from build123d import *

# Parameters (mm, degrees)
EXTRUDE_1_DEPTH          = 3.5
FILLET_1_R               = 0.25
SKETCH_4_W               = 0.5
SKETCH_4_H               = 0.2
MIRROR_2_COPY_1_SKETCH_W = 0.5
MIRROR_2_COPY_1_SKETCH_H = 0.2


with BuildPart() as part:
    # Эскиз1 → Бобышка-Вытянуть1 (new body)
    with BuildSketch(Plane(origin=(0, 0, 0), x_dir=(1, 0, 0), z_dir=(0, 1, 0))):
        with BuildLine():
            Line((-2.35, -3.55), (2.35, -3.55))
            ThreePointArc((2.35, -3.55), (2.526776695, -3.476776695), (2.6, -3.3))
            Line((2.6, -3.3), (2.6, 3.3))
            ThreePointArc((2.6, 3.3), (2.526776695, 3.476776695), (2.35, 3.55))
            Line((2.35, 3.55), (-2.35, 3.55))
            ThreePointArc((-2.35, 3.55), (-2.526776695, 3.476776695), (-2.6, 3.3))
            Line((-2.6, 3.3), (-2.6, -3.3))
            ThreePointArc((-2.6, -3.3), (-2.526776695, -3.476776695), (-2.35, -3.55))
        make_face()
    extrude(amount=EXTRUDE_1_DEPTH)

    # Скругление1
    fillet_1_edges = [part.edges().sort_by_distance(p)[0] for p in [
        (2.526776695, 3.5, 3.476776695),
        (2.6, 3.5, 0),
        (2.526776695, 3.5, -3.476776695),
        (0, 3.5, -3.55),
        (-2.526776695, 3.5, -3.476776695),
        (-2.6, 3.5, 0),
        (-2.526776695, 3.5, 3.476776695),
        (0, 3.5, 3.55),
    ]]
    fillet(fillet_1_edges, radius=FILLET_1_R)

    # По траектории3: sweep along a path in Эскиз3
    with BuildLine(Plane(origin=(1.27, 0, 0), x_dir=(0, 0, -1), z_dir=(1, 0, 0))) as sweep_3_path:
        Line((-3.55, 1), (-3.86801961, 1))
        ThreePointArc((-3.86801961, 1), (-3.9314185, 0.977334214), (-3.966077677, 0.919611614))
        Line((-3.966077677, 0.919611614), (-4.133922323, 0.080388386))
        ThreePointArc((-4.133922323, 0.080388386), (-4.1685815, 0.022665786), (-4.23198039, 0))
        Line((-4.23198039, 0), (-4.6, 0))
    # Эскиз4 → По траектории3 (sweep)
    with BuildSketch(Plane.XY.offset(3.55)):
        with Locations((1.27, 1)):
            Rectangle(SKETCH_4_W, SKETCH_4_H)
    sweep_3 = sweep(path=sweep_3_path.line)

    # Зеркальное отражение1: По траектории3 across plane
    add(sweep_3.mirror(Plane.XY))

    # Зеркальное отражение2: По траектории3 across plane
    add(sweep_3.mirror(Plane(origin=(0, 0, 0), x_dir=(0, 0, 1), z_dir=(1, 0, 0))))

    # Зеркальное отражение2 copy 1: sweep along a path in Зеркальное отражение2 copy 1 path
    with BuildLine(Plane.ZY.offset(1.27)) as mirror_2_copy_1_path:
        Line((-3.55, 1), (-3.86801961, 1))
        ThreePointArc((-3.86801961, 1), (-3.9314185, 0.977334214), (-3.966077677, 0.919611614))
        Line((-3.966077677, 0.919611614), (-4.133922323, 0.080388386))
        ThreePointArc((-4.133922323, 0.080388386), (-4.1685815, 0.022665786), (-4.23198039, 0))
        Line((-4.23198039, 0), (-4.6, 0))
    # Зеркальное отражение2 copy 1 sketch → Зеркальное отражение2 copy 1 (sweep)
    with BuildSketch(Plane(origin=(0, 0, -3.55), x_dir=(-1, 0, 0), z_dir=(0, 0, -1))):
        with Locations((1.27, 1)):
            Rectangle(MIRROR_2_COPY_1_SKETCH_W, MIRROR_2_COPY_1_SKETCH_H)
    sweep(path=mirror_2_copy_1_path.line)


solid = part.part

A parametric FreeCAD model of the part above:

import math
import FreeCAD as App
import Part
import Sketcher
Q = App.Units.Quantity


def edges_at(feature, points):
    """Names of the edges that pass closest to the given points."""
    edges = feature.Shape.Edges
    near = lambda p: min(range(len(edges)), key=lambda i: edges[i].distToShape(Part.Vertex(*p))[0])
    return sorted({f"Edge{near(p) + 1}" for p in points})


def add_polygon(sketch, points):
    """Adds a closed chain of lines whose ends are joined by coincident constraints."""
    first, n = sketch.GeometryCount, len(points)
    for a, b in zip(points, points[1:] + points[:1]):
        sketch.addGeometry(Part.LineSegment(App.Vector(*a, 0), App.Vector(*b, 0)), False)
    for i in range(n):
        sketch.addConstraint(Sketcher.Constraint("Coincident", first + i, 2, first + (i + 1) % n, 1))

doc = App.newDocument("Part")
body = doc.addObject("PartDesign::Body", "Body")

sketch1 = body.newObject("Sketcher::SketchObject", "Sketch")
sketch1.AttachmentSupport = (doc.getObject("XZ_Plane"), [""])
sketch1.MapMode = "FlatFace"
sketch1.addGeometry(Part.LineSegment(App.Vector(-2.35, 3.55, 0), App.Vector(2.35, 3.55, 0)), False)
sketch1.addGeometry(Part.ArcOfCircle(Part.Circle(App.Vector(2.35, 3.3, 0), App.Vector(0, 0, 1), 0.25), math.radians(0), math.radians(90)), False)
sketch1.addGeometry(Part.LineSegment(App.Vector(2.6, 3.3, 0), App.Vector(2.6, -3.3, 0)), False)
sketch1.addGeometry(Part.ArcOfCircle(Part.Circle(App.Vector(2.35, -3.3, 0), App.Vector(0, 0, 1), 0.25), math.radians(-90), math.radians(0)), False)
sketch1.addGeometry(Part.LineSegment(App.Vector(2.35, -3.55, 0), App.Vector(-2.35, -3.55, 0)), False)
sketch1.addGeometry(Part.ArcOfCircle(Part.Circle(App.Vector(-2.35, -3.3, 0), App.Vector(0, 0, 1), 0.25), math.radians(-180), math.radians(-90)), False)
sketch1.addGeometry(Part.LineSegment(App.Vector(-2.6, -3.3, 0), App.Vector(-2.6, 3.3, 0)), False)
sketch1.addGeometry(Part.ArcOfCircle(Part.Circle(App.Vector(-2.35, 3.3, 0), App.Vector(0, 0, 1), 0.25), math.radians(90), math.radians(180)), False)
sketch1.addConstraint(Sketcher.Constraint("Tangent", 0, 2, 1, 2))
sketch1.addConstraint(Sketcher.Constraint("Tangent", 1, 1, 2, 1))
sketch1.addConstraint(Sketcher.Constraint("Tangent", 2, 2, 3, 2))
sketch1.addConstraint(Sketcher.Constraint("Tangent", 3, 1, 4, 1))
sketch1.addConstraint(Sketcher.Constraint("Tangent", 4, 2, 5, 2))
sketch1.addConstraint(Sketcher.Constraint("Tangent", 5, 1, 6, 1))
sketch1.addConstraint(Sketcher.Constraint("Tangent", 6, 2, 7, 2))
sketch1.addConstraint(Sketcher.Constraint("Tangent", 7, 1, 0, 1))
sketch1.addConstraint(Sketcher.Constraint("Horizontal", 0))
sketch1.addConstraint(Sketcher.Constraint("Vertical", 2))
sketch1.addConstraint(Sketcher.Constraint("Horizontal", 4))
sketch1.addConstraint(Sketcher.Constraint("Vertical", 6))
sketch1.addConstraint(Sketcher.Constraint("Equal", 1, 3))
sketch1.addConstraint(Sketcher.Constraint("Equal", 3, 5))
sketch1.addConstraint(Sketcher.Constraint("Equal", 5, 7))
sketch1.addConstraint(Sketcher.Constraint("Symmetric", 1, 3, 5, 3, -1, 1))
sketch1.addConstraint(Sketcher.Constraint("Radius", 1, Q("0.25 mm")))
sketch1.addConstraint(Sketcher.Constraint("DistanceX", 0, 1, 0, 2, Q("4.7 mm")))
sketch1.addConstraint(Sketcher.Constraint("DistanceY", 2, 2, 2, 1, Q("6.6 mm")))
pad1 = body.newObject("PartDesign::Pad", "Pad")
pad1.Profile = sketch1
pad1.Length = 3.5
pad1.Reversed = True
doc.recompute()

fillet = body.newObject("PartDesign::Fillet", "Fillet")
fillet.Base = (pad1, edges_at(pad1, [
    (2.527, 3.5, 3.477),
    (2.6, 3.5, 0),
    (2.527, 3.5, -3.477),
    (0, 3.5, -3.55),
    (-2.527, 3.5, -3.477),
    (-2.6, 3.5, 0),
    (-2.527, 3.5, 3.477),
    (0, 3.5, 3.55),
]))
fillet.Radius = 0.25

sketch2 = body.newObject("Sketcher::SketchObject", "Sketch001")
sketch2.AttachmentSupport = (doc.getObject("XY_Plane"), [""])
sketch2.MapMode = "FlatFace"
sketch2.AttachmentOffset = App.Placement(App.Vector(0, 0, 3.55), App.Rotation())
add_polygon(sketch2, [(1.02, 1.1), (1.02, 0.9), (1.52, 0.9), (1.52, 1.1)])
sketch2.addConstraint(Sketcher.Constraint("Vertical", 0))
sketch2.addConstraint(Sketcher.Constraint("Horizontal", 1))
sketch2.addConstraint(Sketcher.Constraint("Vertical", 2))
sketch2.addConstraint(Sketcher.Constraint("Horizontal", 3))
sketch2.addConstraint(Sketcher.Constraint("DistanceX", 1, 1, 1, 2, Q("0.5 mm")))
sketch2.addConstraint(Sketcher.Constraint("DistanceY", 0, 2, 0, 1, Q("0.2 mm")))
sketch2.addConstraint(Sketcher.Constraint("DistanceY", -1, 1, 0, 2, Q("0.9 mm")))
sketch2.addConstraint(Sketcher.Constraint("DistanceX", -1, 1, 0, 2, Q("1.02 mm")))

sketch3 = body.newObject("Sketcher::SketchObject", "Sketch002")
sketch3.AttachmentSupport = (doc.getObject("YZ_Plane"), [""])
sketch3.MapMode = "FlatFace"
sketch3.AttachmentOffset = App.Placement(App.Vector(0, 0, 1.27), App.Rotation())
sketch3.addGeometry(Part.LineSegment(App.Vector(1, 3.55, 0), App.Vector(1, 3.87, 0)), False)
sketch3.addGeometry(Part.ArcOfCircle(Part.Circle(App.Vector(0.9, 3.87, 0), App.Vector(0, 0, 1), 0.1), math.radians(0), math.radians(79)), False)
sketch3.addGeometry(Part.LineSegment(App.Vector(0.92, 3.97, 0), App.Vector(0.08, 4.13, 0)), False)
sketch3.addGeometry(Part.ArcOfCircle(Part.Circle(App.Vector(0.1, 4.23, 0), App.Vector(0, 0, 1), 0.1), math.radians(-180), math.radians(-101)), False)
sketch3.addGeometry(Part.LineSegment(App.Vector(0, 4.23, 0), App.Vector(0, 4.6, 0)), False)
sketch3.addConstraint(Sketcher.Constraint("Tangent", 0, 2, 1, 1))
sketch3.addConstraint(Sketcher.Constraint("Tangent", 1, 2, 2, 1))
sketch3.addConstraint(Sketcher.Constraint("Tangent", 2, 2, 3, 2))
sketch3.addConstraint(Sketcher.Constraint("Tangent", 3, 1, 4, 1))
sketch3.addConstraint(Sketcher.Constraint("Vertical", 0))
sketch3.addConstraint(Sketcher.Constraint("Vertical", 4))
sketch3.addConstraint(Sketcher.Constraint("Equal", 1, 3))
sketch3.addConstraint(Sketcher.Constraint("PointOnObject", 3, 1, -2))
sketch3.addConstraint(Sketcher.Constraint("Radius", 1, Q("0.1 mm")))
sketch3.addConstraint(Sketcher.Constraint("DistanceX", -1, 1, 0, 1, Q("1 mm")))
sketch3.addConstraint(Sketcher.Constraint("DistanceY", -1, 1, 4, 2, Q("4.6 mm")))
sketch3.addConstraint(Sketcher.Constraint("DistanceY", -1, 1, 0, 1, Q("3.55 mm")))
sketch3.addConstraint(Sketcher.Constraint("DistanceY", 0, 1, 0, 2, Q("0.31802 mm")))
sketch3.addConstraint(Sketcher.Constraint("DistanceY", 4, 1, 4, 2, Q("0.36802 mm")))
doc.recompute()

additivepipe = body.newObject("PartDesign::AdditivePipe", "AdditivePipe")
additivepipe.Profile = sketch2
additivepipe.Spine = (sketch3, ["Edge1", "Edge2", "Edge3", "Edge4", "Edge5"])
doc.recompute()

mirrored = body.newObject("PartDesign::Mirrored", "Mirrored")
mirrored.Originals = [additivepipe]
mirrored.MirrorPlane = (doc.getObject("XY_Plane"), [""])
body.Tip = mirrored
doc.recompute()

mirrored2 = body.newObject("PartDesign::Mirrored", "Mirrored001")
mirrored2.Originals = [additivepipe]
mirrored2.MirrorPlane = (doc.getObject("YZ_Plane"), [""])
body.Tip = mirrored2

sketch4 = body.newObject("Sketcher::SketchObject", "Sketch003")
sketch4.AttachmentSupport = (doc.getObject("XY_Plane"), [""])
sketch4.MapMode = "FlatFace"
sketch4.AttachmentOffset = App.Placement(App.Vector(0, 0, -3.55), App.Rotation())
add_polygon(sketch4, [(-1.02, 1.1), (-1.02, 0.9), (-1.52, 0.9), (-1.52, 1.1)])
sketch4.addConstraint(Sketcher.Constraint("Vertical", 0))
sketch4.addConstraint(Sketcher.Constraint("Horizontal", 1))
sketch4.addConstraint(Sketcher.Constraint("Vertical", 2))
sketch4.addConstraint(Sketcher.Constraint("Horizontal", 3))
sketch4.addConstraint(Sketcher.Constraint("DistanceX", 1, 2, 1, 1, Q("0.5 mm")))
sketch4.addConstraint(Sketcher.Constraint("DistanceY", 0, 2, 0, 1, Q("0.2 mm")))
sketch4.addConstraint(Sketcher.Constraint("DistanceY", -1, 1, 0, 2, Q("0.9 mm")))
sketch4.addConstraint(Sketcher.Constraint("DistanceX", 0, 2, -1, 1, Q("1.02 mm")))

sketch5 = body.newObject("Sketcher::SketchObject", "Sketch004")
sketch5.AttachmentSupport = (doc.getObject("YZ_Plane"), [""])
sketch5.MapMode = "FlatFace"
sketch5.AttachmentOffset = App.Placement(App.Vector(0, 0, -1.27), App.Rotation())
sketch5.addGeometry(Part.LineSegment(App.Vector(1, -3.55, 0), App.Vector(1, -3.87, 0)), False)
sketch5.addGeometry(Part.ArcOfCircle(Part.Circle(App.Vector(0.9, -3.87, 0), App.Vector(0, 0, 1), 0.1), math.radians(-79), math.radians(0)), False)
sketch5.addGeometry(Part.LineSegment(App.Vector(0.92, -3.97, 0), App.Vector(0.08, -4.13, 0)), False)
sketch5.addGeometry(Part.ArcOfCircle(Part.Circle(App.Vector(0.1, -4.23, 0), App.Vector(0, 0, 1), 0.1), math.radians(101), math.radians(180)), False)
sketch5.addGeometry(Part.LineSegment(App.Vector(0, -4.23, 0), App.Vector(0, -4.6, 0)), False)
sketch5.addConstraint(Sketcher.Constraint("Tangent", 0, 2, 1, 2))
sketch5.addConstraint(Sketcher.Constraint("Tangent", 1, 1, 2, 1))
sketch5.addConstraint(Sketcher.Constraint("Tangent", 2, 2, 3, 1))
sketch5.addConstraint(Sketcher.Constraint("Tangent", 3, 2, 4, 1))
sketch5.addConstraint(Sketcher.Constraint("Vertical", 0))
sketch5.addConstraint(Sketcher.Constraint("Vertical", 4))
sketch5.addConstraint(Sketcher.Constraint("Equal", 1, 3))
sketch5.addConstraint(Sketcher.Constraint("PointOnObject", 3, 2, -2))
sketch5.addConstraint(Sketcher.Constraint("Radius", 1, Q("0.1 mm")))
sketch5.addConstraint(Sketcher.Constraint("DistanceX", -1, 1, 0, 1, Q("1 mm")))
sketch5.addConstraint(Sketcher.Constraint("DistanceY", 4, 2, -1, 1, Q("4.6 mm")))
sketch5.addConstraint(Sketcher.Constraint("DistanceY", 0, 1, -1, 1, Q("3.55 mm")))
sketch5.addConstraint(Sketcher.Constraint("DistanceY", 0, 2, 0, 1, Q("0.31802 mm")))
sketch5.addConstraint(Sketcher.Constraint("DistanceY", 4, 2, 4, 1, Q("0.36802 mm")))
doc.recompute()

additivepipe2 = body.newObject("PartDesign::AdditivePipe", "AdditivePipe001")
additivepipe2.Profile = sketch4
additivepipe2.Spine = (sketch5, ["Edge1", "Edge2", "Edge3", "Edge4", "Edge5"])

doc.recompute()
